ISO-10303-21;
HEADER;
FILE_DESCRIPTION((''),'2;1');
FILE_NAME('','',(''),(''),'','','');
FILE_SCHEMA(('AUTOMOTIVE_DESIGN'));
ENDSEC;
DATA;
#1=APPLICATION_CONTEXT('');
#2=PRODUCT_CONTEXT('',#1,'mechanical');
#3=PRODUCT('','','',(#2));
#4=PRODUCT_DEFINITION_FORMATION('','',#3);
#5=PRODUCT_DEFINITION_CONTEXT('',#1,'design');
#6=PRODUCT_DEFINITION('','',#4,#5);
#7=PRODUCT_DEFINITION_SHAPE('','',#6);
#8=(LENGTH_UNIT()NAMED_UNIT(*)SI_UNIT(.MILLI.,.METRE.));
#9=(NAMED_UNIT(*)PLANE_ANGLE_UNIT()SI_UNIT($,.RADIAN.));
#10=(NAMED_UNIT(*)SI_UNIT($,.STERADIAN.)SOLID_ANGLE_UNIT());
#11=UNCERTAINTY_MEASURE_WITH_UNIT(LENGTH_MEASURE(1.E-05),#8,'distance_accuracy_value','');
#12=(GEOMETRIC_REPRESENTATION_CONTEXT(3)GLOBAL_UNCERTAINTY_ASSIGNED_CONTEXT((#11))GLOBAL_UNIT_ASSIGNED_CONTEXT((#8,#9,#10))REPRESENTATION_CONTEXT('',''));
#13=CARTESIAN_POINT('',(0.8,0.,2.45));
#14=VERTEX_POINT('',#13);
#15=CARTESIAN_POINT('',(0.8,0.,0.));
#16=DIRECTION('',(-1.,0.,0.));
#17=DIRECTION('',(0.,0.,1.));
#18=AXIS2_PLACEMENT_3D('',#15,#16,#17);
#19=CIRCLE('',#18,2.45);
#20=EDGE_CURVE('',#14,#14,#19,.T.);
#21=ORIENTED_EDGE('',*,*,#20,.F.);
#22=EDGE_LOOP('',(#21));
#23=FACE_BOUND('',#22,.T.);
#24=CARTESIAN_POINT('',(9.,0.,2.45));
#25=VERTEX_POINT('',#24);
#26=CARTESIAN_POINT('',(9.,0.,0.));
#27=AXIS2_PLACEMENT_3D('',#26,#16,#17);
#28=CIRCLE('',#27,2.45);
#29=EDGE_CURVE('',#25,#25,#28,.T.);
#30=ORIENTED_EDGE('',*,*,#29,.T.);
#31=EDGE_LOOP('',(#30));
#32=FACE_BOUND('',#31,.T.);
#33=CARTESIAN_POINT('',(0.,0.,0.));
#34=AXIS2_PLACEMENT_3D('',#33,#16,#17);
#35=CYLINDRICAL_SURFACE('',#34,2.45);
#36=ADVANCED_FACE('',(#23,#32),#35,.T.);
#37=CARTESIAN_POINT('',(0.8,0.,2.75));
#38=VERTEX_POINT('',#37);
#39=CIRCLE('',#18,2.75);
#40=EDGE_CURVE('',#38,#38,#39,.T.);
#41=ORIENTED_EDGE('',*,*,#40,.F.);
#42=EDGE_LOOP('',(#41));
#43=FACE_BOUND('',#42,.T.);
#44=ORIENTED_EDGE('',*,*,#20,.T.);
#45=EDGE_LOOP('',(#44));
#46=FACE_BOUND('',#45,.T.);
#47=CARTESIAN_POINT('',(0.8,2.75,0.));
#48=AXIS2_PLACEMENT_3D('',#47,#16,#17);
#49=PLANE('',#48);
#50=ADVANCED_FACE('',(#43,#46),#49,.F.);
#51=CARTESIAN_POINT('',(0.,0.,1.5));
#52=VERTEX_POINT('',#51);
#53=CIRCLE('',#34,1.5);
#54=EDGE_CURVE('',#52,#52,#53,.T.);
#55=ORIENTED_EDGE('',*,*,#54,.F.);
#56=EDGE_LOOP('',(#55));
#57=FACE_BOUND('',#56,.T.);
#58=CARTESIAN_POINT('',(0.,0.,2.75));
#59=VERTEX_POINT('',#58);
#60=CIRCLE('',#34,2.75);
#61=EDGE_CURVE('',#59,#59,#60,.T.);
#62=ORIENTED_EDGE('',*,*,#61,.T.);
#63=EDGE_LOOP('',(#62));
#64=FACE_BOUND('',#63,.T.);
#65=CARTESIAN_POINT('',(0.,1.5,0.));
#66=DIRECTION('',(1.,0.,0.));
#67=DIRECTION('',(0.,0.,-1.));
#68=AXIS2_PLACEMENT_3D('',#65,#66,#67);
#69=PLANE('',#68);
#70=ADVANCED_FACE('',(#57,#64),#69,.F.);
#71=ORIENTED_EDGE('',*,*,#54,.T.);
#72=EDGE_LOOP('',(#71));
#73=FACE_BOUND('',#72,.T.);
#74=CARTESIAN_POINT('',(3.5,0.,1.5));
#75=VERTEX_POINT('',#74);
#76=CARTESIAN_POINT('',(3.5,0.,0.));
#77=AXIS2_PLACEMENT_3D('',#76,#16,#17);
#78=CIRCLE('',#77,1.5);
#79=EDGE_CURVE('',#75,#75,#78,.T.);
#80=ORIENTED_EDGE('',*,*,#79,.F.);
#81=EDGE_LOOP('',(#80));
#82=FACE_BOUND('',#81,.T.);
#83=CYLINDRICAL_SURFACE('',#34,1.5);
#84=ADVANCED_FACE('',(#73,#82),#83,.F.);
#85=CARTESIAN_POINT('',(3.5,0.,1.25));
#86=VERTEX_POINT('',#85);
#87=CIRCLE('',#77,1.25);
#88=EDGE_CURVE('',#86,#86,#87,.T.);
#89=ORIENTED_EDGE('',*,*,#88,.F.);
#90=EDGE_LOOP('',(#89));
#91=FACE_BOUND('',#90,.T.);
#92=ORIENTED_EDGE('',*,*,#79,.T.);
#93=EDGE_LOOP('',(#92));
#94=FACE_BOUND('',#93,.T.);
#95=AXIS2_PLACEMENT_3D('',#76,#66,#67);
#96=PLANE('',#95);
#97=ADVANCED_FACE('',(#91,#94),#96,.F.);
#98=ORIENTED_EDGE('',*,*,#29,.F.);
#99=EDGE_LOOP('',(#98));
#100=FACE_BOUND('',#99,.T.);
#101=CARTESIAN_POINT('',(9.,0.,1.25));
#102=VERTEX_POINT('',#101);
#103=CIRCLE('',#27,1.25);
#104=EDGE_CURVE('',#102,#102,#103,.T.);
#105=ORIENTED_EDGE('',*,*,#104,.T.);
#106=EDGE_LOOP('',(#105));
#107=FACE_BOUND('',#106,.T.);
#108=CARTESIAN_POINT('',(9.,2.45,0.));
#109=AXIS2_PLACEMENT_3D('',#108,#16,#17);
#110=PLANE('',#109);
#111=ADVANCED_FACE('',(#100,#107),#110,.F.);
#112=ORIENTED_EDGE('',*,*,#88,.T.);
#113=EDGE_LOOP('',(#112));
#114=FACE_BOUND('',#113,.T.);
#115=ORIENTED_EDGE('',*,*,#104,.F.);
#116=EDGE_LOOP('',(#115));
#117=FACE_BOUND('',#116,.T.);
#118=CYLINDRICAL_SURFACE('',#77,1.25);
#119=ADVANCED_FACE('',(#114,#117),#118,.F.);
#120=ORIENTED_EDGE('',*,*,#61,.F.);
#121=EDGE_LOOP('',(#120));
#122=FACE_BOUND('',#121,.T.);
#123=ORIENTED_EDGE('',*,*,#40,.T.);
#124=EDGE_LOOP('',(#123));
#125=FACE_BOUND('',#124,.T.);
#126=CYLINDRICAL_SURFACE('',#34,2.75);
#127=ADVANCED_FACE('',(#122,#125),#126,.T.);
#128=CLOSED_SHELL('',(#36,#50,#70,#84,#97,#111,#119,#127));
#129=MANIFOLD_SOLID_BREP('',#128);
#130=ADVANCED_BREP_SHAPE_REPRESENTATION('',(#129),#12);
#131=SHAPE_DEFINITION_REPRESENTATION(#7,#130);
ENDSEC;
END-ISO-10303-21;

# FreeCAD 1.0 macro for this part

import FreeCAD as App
import Part
import Sketcher
from FreeCAD import Vector


def add_polygon(sketch, points):
    """Adds a closed chain of lines whose ends are joined by coincident constraints."""
    first, n = sketch.GeometryCount, len(points)
    for a, b in zip(points, points[1:] + points[:1]):
        sketch.addGeometry(Part.LineSegment(App.Vector(*a, 0), App.Vector(*b, 0)), False)
    for i in range(n):
        sketch.addConstraint(Sketcher.Constraint("Coincident", first + i, 2, first + (i + 1) % n, 1))

doc = App.newDocument("Part")
body = doc.addObject("PartDesign::Body", "Body")

sketch1 = doc.addObject("Sketcher::SketchObject", "Sketch")
body.addObject(sketch1)
sketch1.AttachmentSupport = (doc.XY_Plane, [""])
sketch1.MapMode = "FlatFace"
add_polygon(sketch1, [(0, 2.75), (0, 1.5), (3.5, 1.5), (3.5, 0), (9, 0), (9, 2.45), (0.8, 2.45), (0.8, 2.75)])
sketch1.addConstraint([
    Sketcher.Constraint("Vertical", 0),
    Sketcher.Constraint("Horizontal", 1),
    Sketcher.Constraint("Vertical", 2),
    Sketcher.Constraint("Horizontal", 3),
    Sketcher.Constraint("Vertical", 4),
    Sketcher.Constraint("Horizontal", 5),
    Sketcher.Constraint("Vertical", 6),
    Sketcher.Constraint("Horizontal", 7),
    Sketcher.Constraint("PointOnObject", 0, 2, -2),
    Sketcher.Constraint("PointOnObject", 2, 2, -1),
    Sketcher.Constraint("DistanceX", 1, 1, 1, 2, 3.5),
    Sketcher.Constraint("DistanceX", 3, 1, 3, 2, 5.5),
    Sketcher.Constraint("DistanceX", 5, 2, 5, 1, 8.2),
    Sketcher.Constraint("DistanceY", 2, 2, 2, 1, 1.5),
    Sketcher.Constraint("DistanceY", 6, 1, 6, 2, 0.3),
    Sketcher.Constraint("DistanceY", 0, 2, 0, 1, 1.25),
])
revolution = doc.addObject("PartDesign::Revolution", "Revolution")
body.addObject(revolution)
revolution.Profile = sketch1
revolution.ReferenceAxis = (sketch1, ["H_Axis"])
revolution.Angle = 360

sketch2 = doc.addObject("Sketcher::SketchObject", "Sketch001")
body.addObject(sketch2)
sketch2.AttachmentSupport = (doc.YZ_Plane, [""])
sketch2.MapMode = "FlatFace"
sketch2.AttachmentOffset = App.Placement(Vector(0, 0, 3.5), App.Rotation())
sketch2.addGeometry(Part.Circle(Vector(0, 0, 0), Vector(0, 0, 1), 1.2), False)
sketch2.addConstraint([
    Sketcher.Constraint("Coincident", 0, 3, -1, 1),
    Sketcher.Constraint("Diameter", 0, 2.5),
])
doc.recompute()
hole = doc.addObject("PartDesign::Hole", "Hole")
body.addObject(hole)
hole.Profile = sketch2
hole.ThreadType = "None"
hole.Diameter = 2.5
hole.DepthType = "ThroughAll"
hole.Reversed = True

doc.recompute()
